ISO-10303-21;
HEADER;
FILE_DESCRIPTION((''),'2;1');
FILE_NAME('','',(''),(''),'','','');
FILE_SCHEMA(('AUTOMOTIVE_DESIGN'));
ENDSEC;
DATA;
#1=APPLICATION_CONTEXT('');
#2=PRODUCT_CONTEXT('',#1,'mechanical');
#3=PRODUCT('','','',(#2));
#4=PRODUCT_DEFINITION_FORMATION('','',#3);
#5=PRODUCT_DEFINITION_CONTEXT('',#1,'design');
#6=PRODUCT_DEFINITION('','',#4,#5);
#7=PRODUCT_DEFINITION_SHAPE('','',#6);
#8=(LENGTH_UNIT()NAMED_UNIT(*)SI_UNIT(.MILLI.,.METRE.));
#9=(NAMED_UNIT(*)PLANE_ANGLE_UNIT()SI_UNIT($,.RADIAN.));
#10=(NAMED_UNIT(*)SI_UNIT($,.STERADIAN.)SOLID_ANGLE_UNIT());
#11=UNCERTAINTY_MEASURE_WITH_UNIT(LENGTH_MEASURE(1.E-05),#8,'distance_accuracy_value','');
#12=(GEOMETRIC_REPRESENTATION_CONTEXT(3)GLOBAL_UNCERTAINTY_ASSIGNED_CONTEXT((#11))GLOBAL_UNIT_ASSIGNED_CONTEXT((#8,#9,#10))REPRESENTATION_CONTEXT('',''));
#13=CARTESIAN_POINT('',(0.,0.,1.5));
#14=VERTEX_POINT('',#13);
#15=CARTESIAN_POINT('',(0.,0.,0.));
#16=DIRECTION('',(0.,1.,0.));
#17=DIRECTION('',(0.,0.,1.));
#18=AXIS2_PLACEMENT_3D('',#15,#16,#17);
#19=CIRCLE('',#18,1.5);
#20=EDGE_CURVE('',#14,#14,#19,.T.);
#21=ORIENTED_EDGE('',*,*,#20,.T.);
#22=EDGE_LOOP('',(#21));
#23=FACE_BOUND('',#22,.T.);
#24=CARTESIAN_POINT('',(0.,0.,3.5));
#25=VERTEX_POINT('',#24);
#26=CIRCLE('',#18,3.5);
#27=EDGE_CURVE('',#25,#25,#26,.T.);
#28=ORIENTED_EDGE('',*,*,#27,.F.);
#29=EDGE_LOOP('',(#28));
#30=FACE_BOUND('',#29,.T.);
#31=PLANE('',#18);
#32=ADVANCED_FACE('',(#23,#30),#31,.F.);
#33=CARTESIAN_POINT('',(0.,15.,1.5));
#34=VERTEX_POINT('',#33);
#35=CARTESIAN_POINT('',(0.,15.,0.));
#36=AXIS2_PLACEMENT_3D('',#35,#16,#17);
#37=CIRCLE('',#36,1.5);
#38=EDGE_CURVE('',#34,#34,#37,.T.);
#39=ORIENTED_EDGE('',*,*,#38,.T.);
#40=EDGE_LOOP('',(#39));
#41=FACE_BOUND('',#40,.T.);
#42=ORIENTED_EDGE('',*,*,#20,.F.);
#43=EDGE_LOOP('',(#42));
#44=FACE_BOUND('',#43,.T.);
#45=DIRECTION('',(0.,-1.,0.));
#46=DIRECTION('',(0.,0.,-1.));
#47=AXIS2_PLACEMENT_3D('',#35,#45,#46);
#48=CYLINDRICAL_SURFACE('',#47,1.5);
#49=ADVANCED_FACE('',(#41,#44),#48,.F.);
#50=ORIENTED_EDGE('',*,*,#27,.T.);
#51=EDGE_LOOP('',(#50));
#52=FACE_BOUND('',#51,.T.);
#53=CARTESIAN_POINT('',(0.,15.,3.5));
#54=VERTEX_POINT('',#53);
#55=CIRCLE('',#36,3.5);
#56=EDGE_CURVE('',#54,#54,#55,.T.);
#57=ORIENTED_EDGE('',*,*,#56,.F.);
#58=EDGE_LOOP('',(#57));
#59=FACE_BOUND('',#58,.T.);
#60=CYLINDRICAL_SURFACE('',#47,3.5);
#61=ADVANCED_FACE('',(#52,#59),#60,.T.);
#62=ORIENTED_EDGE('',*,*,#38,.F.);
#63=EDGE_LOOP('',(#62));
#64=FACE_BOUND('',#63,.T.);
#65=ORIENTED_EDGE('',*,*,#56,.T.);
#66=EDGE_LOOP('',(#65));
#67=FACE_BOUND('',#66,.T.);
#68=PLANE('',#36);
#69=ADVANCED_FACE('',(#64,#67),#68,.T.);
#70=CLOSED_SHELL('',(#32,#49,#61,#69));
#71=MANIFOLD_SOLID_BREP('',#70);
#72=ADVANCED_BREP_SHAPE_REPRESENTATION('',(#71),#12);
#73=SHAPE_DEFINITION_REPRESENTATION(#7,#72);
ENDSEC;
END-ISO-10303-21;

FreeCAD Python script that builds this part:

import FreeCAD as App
import Part
import Sketcher
from FreeCAD import Vector
Q = App.Units.Quantity

doc = App.newDocument("Part")
params = doc.addObject("Spreadsheet::Sheet", "Params")
for row, (alias, value) in enumerate([
    ("sketch1_diameter", "7 mm"),
    ("sketch1_diameter2", "3 mm"),
    ("pad1_length", "15 mm"),
], start=1):
    params.set(f"A{row}", alias)
    params.set(f"B{row}", "=" + value)
    params.setAlias(f"B{row}", alias)

body = doc.addObject("PartDesign::Body", "Body")

sketch1 = body.newObject("Sketcher::SketchObject", "Sketch")
sketch1.AttachmentSupport = (doc.getObject("XZ_Plane"), [""])
sketch1.MapMode = "FlatFace"
sketch1.addGeometry(Part.Circle(Vector(0, 0, 0), Vector(0, 0, 1), 3.5), False)
sketch1.addGeometry(Part.Circle(Vector(0, 0, 0), Vector(0, 0, 1), 1.5), False)
sketch1.addConstraint(Sketcher.Constraint("Coincident", 0, 3, -1, 1))
sketch1.addConstraint(Sketcher.Constraint("Coincident", 1, 3, -1, 1))
sketch1.addConstraint(Sketcher.Constraint("Diameter", 0, Q("7 mm")))
sketch1.addConstraint(Sketcher.Constraint("Diameter", 1, Q("3 mm")))
sketch1.setExpression("Constraints[2]", "Params.sketch1_diameter")
sketch1.setExpression("Constraints[3]", "Params.sketch1_diameter2")
pad1 = body.newObject("PartDesign::Pad", "Pad")
pad1.Profile = sketch1
pad1.setExpression("Length", "Params.pad1_length")
pad1.Reversed = True

doc.recompute()
